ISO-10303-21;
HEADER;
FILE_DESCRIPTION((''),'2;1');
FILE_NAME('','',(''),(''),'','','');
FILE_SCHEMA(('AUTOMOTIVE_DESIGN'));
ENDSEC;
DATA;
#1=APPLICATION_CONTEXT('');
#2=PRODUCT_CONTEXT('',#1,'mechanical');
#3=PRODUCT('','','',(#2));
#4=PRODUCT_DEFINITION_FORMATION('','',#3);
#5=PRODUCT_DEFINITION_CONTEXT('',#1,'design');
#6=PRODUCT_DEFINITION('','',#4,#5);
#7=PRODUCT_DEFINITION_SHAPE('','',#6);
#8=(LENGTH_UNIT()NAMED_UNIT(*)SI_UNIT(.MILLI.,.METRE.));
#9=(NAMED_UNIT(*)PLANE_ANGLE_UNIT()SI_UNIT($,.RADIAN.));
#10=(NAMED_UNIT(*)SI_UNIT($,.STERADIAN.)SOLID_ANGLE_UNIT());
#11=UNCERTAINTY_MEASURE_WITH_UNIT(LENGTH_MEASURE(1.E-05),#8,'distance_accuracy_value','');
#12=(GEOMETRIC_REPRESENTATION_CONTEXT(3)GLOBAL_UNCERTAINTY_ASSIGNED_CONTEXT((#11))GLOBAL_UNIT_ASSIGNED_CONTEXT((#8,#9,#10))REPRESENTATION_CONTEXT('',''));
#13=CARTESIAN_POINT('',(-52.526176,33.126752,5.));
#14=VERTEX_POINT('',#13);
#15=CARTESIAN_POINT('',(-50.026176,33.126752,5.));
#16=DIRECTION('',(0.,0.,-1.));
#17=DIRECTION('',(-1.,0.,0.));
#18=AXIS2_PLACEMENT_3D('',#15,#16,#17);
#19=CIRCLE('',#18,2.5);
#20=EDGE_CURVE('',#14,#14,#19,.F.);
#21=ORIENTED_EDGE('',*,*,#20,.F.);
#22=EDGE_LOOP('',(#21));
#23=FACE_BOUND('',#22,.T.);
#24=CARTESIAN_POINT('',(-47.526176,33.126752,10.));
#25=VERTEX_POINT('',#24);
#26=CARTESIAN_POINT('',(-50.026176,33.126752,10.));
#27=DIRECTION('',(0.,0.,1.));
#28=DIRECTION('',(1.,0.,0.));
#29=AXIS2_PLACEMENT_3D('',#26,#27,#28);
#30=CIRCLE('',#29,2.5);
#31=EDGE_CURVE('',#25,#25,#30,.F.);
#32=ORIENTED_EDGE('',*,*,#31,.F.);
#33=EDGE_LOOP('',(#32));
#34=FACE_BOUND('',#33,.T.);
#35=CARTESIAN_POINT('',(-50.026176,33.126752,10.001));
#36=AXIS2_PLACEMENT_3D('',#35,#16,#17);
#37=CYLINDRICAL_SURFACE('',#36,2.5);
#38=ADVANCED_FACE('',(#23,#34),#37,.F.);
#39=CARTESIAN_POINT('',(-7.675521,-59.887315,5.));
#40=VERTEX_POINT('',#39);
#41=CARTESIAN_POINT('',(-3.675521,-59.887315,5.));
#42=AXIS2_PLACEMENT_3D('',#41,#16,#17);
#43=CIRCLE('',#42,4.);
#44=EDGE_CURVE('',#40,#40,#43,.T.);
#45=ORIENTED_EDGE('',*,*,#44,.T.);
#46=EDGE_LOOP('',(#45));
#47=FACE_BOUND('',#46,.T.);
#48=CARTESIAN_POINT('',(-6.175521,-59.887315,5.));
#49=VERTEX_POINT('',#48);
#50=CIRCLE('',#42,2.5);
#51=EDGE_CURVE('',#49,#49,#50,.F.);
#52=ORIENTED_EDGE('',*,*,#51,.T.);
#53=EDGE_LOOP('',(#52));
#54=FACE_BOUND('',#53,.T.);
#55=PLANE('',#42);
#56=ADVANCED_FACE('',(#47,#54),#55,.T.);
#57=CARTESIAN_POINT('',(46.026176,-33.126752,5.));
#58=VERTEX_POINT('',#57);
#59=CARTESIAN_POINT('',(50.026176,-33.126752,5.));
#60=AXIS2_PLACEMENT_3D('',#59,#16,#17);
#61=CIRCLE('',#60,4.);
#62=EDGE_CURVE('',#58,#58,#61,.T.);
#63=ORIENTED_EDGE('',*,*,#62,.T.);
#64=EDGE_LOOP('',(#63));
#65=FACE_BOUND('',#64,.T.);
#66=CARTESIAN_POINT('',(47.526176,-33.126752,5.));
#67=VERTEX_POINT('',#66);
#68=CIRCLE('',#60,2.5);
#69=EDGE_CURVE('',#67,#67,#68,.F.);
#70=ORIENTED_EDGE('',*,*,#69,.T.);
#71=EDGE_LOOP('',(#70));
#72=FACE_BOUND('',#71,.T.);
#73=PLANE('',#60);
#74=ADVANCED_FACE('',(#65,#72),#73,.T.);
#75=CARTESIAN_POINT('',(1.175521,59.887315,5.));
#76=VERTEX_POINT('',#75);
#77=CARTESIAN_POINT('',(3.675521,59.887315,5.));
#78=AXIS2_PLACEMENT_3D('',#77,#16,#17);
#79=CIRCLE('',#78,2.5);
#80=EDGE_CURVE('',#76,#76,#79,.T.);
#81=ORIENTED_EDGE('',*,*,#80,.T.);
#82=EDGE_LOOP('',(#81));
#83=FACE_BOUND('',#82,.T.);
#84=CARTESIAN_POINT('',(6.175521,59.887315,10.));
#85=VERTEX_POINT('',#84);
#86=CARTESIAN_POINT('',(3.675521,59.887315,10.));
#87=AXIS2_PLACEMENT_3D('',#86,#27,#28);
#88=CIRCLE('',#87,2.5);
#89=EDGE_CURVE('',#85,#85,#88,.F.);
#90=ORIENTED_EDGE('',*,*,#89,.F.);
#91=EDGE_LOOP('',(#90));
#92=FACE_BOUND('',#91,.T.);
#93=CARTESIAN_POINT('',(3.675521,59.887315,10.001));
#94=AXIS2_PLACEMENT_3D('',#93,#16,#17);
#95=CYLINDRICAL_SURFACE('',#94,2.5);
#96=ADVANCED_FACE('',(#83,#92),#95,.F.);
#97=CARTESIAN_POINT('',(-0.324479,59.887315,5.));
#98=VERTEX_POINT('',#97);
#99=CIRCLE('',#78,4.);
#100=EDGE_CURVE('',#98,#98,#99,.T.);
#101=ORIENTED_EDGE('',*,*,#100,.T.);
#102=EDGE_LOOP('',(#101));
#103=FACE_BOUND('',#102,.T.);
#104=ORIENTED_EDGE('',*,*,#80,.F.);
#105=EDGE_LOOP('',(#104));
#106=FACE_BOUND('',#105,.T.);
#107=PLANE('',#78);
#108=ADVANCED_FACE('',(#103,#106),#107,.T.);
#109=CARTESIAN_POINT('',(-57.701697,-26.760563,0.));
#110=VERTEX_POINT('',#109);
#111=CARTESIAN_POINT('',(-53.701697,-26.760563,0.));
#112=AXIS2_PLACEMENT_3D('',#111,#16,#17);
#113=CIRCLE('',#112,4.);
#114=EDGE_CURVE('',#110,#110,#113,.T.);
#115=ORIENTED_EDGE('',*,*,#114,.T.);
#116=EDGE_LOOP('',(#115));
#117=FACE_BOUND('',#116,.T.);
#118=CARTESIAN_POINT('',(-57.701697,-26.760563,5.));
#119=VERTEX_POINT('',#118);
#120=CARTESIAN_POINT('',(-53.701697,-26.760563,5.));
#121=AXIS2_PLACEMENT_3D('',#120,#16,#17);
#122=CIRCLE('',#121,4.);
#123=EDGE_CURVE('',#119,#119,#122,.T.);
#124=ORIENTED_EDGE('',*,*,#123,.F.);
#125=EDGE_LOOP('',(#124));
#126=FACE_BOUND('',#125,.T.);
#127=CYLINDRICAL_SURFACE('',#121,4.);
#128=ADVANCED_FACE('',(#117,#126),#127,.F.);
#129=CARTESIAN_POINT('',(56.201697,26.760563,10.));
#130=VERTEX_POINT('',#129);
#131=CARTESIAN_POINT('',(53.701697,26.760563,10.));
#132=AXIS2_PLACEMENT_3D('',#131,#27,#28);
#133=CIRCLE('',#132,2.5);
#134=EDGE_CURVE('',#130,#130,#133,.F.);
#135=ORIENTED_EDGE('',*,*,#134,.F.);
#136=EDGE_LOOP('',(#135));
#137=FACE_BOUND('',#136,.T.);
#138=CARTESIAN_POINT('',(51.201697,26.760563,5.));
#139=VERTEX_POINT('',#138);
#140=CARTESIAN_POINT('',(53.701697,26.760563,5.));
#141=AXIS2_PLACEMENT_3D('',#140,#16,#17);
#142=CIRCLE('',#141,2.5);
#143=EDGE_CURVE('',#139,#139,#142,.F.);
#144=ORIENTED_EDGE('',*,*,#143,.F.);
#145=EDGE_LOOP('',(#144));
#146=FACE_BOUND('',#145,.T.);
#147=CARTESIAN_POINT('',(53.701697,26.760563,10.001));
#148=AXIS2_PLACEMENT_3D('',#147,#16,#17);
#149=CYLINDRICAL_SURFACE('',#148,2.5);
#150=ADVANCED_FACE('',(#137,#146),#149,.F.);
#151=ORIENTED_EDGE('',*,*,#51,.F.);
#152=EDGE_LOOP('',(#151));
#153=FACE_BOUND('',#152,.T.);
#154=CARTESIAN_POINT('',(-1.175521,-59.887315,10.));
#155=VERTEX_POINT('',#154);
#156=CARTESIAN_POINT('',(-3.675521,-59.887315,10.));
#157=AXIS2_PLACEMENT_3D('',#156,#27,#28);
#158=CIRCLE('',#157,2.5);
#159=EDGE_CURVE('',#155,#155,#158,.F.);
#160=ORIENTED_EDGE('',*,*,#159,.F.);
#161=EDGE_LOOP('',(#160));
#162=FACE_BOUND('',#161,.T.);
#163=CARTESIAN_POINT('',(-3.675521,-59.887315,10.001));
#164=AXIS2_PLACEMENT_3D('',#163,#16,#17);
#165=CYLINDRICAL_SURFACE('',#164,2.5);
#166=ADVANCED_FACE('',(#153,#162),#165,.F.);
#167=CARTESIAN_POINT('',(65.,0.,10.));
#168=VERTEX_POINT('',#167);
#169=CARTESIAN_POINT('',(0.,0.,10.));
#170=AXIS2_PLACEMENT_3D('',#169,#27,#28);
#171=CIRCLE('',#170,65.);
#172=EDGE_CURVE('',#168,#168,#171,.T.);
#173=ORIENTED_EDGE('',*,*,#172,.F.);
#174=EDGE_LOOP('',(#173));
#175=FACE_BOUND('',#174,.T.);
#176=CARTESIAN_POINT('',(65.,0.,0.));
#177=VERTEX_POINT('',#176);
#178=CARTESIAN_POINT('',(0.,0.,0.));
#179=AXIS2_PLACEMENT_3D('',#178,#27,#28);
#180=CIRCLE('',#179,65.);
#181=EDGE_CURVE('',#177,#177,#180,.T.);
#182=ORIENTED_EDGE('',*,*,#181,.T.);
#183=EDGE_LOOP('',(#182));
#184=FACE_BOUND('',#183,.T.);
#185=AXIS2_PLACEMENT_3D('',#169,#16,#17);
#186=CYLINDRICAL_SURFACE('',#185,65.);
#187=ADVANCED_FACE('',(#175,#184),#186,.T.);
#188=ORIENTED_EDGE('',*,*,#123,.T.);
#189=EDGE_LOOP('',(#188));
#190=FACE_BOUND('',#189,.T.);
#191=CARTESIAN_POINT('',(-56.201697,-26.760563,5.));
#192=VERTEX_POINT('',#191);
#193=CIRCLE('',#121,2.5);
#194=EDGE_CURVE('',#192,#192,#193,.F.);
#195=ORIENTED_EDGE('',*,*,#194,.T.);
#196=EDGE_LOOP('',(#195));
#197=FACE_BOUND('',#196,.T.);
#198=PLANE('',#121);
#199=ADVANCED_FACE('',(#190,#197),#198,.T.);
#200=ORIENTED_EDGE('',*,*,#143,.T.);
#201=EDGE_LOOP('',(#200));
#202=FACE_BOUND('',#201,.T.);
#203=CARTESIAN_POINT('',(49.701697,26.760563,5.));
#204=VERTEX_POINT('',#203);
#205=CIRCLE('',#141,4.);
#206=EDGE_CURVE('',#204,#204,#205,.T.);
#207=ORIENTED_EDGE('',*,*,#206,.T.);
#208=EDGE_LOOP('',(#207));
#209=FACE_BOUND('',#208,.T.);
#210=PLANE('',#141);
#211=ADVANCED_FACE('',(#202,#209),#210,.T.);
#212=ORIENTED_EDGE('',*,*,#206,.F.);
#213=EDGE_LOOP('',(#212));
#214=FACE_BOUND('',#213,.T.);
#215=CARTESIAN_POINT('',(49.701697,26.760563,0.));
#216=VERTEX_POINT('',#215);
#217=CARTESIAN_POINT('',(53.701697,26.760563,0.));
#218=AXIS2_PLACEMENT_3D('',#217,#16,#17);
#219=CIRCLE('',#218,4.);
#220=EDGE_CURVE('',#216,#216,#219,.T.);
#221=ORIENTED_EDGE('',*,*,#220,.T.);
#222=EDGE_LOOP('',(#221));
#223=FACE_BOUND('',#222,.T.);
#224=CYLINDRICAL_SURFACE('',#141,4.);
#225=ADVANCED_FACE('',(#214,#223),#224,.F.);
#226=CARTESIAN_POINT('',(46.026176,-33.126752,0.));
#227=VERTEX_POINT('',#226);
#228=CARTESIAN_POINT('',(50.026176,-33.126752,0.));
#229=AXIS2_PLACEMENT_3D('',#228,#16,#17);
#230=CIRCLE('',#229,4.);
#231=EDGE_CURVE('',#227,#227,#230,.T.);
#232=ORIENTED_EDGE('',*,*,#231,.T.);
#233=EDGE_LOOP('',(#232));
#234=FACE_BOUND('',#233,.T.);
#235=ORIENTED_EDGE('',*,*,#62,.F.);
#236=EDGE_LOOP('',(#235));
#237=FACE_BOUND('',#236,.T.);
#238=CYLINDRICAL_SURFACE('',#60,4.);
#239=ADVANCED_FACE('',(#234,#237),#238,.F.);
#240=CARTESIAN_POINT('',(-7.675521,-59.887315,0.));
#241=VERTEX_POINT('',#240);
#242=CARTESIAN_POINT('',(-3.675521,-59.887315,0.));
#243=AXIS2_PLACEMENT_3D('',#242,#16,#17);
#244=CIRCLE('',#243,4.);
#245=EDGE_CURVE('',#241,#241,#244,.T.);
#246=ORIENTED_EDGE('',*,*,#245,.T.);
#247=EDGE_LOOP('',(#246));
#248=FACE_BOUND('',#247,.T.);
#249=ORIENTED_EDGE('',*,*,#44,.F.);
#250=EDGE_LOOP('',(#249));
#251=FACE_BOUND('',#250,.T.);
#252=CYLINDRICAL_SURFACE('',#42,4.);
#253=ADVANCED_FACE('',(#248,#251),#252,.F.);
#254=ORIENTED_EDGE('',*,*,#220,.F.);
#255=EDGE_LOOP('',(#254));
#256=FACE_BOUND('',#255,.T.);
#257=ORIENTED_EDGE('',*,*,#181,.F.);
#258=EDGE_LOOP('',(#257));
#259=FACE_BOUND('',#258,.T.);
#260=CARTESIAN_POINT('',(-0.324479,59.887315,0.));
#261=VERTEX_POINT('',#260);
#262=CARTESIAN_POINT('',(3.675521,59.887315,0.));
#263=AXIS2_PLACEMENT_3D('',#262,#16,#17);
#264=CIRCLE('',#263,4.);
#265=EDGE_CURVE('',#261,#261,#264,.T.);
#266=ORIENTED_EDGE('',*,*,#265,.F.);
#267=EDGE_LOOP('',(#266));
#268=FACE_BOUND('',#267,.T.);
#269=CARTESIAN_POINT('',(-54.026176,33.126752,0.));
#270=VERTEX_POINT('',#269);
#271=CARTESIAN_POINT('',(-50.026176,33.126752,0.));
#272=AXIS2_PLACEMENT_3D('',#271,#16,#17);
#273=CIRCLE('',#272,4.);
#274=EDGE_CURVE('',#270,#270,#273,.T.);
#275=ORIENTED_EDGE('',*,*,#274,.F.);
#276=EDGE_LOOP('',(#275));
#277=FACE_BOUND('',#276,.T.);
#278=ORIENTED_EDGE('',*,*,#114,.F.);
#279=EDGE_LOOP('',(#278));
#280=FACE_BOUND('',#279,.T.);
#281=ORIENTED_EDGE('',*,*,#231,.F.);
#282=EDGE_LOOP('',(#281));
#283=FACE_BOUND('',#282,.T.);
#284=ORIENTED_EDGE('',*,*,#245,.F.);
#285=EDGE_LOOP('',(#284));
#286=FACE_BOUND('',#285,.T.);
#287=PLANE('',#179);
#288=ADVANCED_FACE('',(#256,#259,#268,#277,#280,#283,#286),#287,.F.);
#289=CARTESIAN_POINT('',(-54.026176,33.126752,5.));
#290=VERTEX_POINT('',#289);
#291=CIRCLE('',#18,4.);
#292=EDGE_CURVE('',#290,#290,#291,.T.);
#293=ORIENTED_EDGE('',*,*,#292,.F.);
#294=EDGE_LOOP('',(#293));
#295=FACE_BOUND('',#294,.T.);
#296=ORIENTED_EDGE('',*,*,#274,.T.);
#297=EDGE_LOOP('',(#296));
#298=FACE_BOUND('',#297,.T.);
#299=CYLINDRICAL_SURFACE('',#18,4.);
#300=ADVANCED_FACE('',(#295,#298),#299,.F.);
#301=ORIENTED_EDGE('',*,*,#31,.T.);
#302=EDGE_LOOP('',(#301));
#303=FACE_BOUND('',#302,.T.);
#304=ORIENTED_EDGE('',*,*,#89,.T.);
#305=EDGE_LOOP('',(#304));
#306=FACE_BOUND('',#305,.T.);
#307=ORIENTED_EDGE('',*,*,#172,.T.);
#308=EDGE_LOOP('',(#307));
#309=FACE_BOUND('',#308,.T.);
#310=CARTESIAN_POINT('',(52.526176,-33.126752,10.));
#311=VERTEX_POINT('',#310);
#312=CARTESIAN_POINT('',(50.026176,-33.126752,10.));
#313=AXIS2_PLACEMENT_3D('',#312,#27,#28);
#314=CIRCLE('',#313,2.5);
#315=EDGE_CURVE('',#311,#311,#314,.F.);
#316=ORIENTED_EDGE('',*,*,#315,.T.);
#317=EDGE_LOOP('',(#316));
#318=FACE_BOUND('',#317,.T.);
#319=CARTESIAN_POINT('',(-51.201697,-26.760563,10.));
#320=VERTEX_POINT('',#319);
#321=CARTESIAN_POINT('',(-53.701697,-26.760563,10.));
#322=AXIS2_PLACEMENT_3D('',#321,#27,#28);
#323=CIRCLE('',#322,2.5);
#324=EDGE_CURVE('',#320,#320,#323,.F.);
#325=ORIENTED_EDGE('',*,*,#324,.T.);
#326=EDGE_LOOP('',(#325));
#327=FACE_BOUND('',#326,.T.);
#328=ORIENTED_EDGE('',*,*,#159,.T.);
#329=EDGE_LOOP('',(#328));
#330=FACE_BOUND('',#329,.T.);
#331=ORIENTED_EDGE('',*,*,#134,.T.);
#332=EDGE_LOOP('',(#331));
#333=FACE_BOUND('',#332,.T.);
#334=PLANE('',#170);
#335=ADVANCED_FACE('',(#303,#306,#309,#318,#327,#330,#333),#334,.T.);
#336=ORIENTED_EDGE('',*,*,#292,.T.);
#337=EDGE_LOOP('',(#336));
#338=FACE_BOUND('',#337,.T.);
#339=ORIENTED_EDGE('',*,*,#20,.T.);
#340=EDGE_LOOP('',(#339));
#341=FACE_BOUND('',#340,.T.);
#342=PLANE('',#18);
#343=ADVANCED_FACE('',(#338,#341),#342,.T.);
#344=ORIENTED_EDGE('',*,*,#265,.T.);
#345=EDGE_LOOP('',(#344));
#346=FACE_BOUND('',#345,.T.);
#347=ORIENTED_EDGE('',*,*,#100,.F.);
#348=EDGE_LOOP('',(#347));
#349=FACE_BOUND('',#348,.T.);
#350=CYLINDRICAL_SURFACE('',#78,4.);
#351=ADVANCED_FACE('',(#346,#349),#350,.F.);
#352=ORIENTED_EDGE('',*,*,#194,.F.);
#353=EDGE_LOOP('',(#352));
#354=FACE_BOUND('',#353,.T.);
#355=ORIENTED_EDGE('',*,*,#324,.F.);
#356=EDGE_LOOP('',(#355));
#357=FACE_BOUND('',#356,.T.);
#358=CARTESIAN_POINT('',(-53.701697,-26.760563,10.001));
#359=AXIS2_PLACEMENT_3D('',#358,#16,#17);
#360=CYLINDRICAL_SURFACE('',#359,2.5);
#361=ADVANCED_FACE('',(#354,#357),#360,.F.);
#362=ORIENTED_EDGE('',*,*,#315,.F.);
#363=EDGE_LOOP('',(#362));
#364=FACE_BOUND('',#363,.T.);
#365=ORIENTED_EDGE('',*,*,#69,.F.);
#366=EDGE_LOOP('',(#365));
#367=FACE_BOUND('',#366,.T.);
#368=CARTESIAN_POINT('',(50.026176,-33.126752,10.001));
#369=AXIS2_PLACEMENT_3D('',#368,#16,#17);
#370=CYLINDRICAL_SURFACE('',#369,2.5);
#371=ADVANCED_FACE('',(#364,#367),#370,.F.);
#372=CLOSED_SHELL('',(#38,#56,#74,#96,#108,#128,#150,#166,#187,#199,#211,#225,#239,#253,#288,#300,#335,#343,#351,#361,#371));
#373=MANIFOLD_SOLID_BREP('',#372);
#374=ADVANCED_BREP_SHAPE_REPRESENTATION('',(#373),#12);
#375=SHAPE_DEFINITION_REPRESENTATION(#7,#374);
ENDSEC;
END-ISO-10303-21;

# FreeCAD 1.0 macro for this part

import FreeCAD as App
import Part
import Sketcher
from FreeCAD import Vector
Q = App.Units.Quantity

doc = App.newDocument("Part")
body = doc.addObject("PartDesign::Body", "Body")

# Sketch on XY plane
sketch1 = body.newObject("Sketcher::SketchObject", "Sketch")
sketch1.AttachmentSupport = (doc.getObject("XY_Plane"), [""])
sketch1.MapMode = "FlatFace"
sketch1.addGeometry(Part.Circle(Vector(0, 0, 0), Vector(0, 0, 1), 65), False)
sketch1.addConstraint(Sketcher.Constraint("Coincident", 0, 3, -1, 1))
sketch1.addConstraint(Sketcher.Constraint("Diameter", 0, Q("130 mm")))
pad1 = body.newObject("PartDesign::Pad", "Pad")
pad1.Profile = sketch1
pad1.Length = 10

# Sketch on XY plane
sketch2 = body.newObject("Sketcher::SketchObject", "Sketch001")
sketch2.AttachmentSupport = (doc.getObject("XY_Plane"), [""])
sketch2.MapMode = "FlatFace"
sketch2.addGeometry(Part.Circle(Vector(3.7, 59.9, 0), Vector(0, 0, 1), 2.5), False)
sketch2.addConstraint(Sketcher.Constraint("Diameter", 0, Q("5 mm")))
sketch2.addConstraint(Sketcher.Constraint("DistanceX", -1, 1, 0, 3, Q("3.675521 mm")))
sketch2.addConstraint(Sketcher.Constraint("DistanceY", -1, 1, 0, 3, Q("59.887315 mm")))
pocket1 = body.newObject("PartDesign::Pocket", "Pocket")
pocket1.Profile = sketch2
pocket1.Type = "UpToFirst"
pocket1.Reversed = True

# Sketch on XY plane
sketch3 = body.newObject("Sketcher::SketchObject", "Sketch002")
sketch3.AttachmentSupport = (doc.getObject("XY_Plane"), [""])
sketch3.MapMode = "FlatFace"
sketch3.addGeometry(Part.Circle(Vector(-50, 33.1, 0), Vector(0, 0, 1), 2.5), False)
sketch3.addConstraint(Sketcher.Constraint("Diameter", 0, Q("5 mm")))
sketch3.addConstraint(Sketcher.Constraint("DistanceX", 0, 3, -1, 1, Q("50.026176 mm")))
sketch3.addConstraint(Sketcher.Constraint("DistanceY", -1, 1, 0, 3, Q("33.126752 mm")))
pocket2 = body.newObject("PartDesign::Pocket", "Pocket001")
pocket2.Profile = sketch3
pocket2.Type = "UpToFirst"
pocket2.Reversed = True

# Sketch on XY plane
sketch4 = body.newObject("Sketcher::SketchObject", "Sketch003")
sketch4.AttachmentSupport = (doc.getObject("XY_Plane"), [""])
sketch4.MapMode = "FlatFace"
sketch4.addGeometry(Part.Circle(Vector(-53.7, -26.8, 0), Vector(0, 0, 1), 2.5), False)
sketch4.addConstraint(Sketcher.Constraint("Diameter", 0, Q("5 mm")))
sketch4.addConstraint(Sketcher.Constraint("DistanceX", 0, 3, -1, 1, Q("53.701697 mm")))
sketch4.addConstraint(Sketcher.Constraint("DistanceY", 0, 3, -1, 1, Q("26.760563 mm")))
pocket3 = body.newObject("PartDesign::Pocket", "Pocket002")
pocket3.Profile = sketch4
pocket3.Type = "UpToFirst"
pocket3.Reversed = True

# Sketch on XY plane
sketch5 = body.newObject("Sketcher::SketchObject", "Sketch004")
sketch5.AttachmentSupport = (doc.getObject("XY_Plane"), [""])
sketch5.MapMode = "FlatFace"
sketch5.addGeometry(Part.Circle(Vector(-3.7, -59.9, 0), Vector(0, 0, 1), 2.5), False)
sketch5.addConstraint(Sketcher.Constraint("Diameter", 0, Q("5 mm")))
sketch5.addConstraint(Sketcher.Constraint("DistanceX", 0, 3, -1, 1, Q("3.675521 mm")))
sketch5.addConstraint(Sketcher.Constraint("DistanceY", 0, 3, -1, 1, Q("59.887315 mm")))
pocket4 = body.newObject("PartDesign::Pocket", "Pocket003")
pocket4.Profile = sketch5
pocket4.Type = "UpToFirst"
pocket4.Reversed = True

# Sketch on XY plane
sketch6 = body.newObject("Sketcher::SketchObject", "Sketch005")
sketch6.AttachmentSupport = (doc.getObject("XY_Plane"), [""])
sketch6.MapMode = "FlatFace"
sketch6.addGeometry(Part.Circle(Vector(50, -33.1, 0), Vector(0, 0, 1), 2.5), False)
sketch6.addConstraint(Sketcher.Constraint("Diameter", 0, Q("5 mm")))
sketch6.addConstraint(Sketcher.Constraint("DistanceX", -1, 1, 0, 3, Q("50.026176 mm")))
sketch6.addConstraint(Sketcher.Constraint("DistanceY", 0, 3, -1, 1, Q("33.126752 mm")))
pocket5 = body.newObject("PartDesign::Pocket", "Pocket004")
pocket5.Profile = sketch6
pocket5.Type = "UpToFirst"
pocket5.Reversed = True

# Sketch on XY plane
sketch7 = body.newObject("Sketcher::SketchObject", "Sketch006")
sketch7.AttachmentSupport = (doc.getObject("XY_Plane"), [""])
sketch7.MapMode = "FlatFace"
sketch7.addGeometry(Part.Circle(Vector(53.7, 26.8, 0), Vector(0, 0, 1), 2.5), False)
sketch7.addConstraint(Sketcher.Constraint("Diameter", 0, Q("5 mm")))
sketch7.addConstraint(Sketcher.Constraint("DistanceX", -1, 1, 0, 3, Q("53.701697 mm")))
sketch7.addConstraint(Sketcher.Constraint("DistanceY", -1, 1, 0, 3, Q("26.760563 mm")))
pocket6 = body.newObject("PartDesign::Pocket", "Pocket005")
pocket6.Profile = sketch7
pocket6.Type = "UpToFirst"
pocket6.Reversed = True

# Sketch on XY plane
sketch8 = body.newObject("Sketcher::SketchObject", "Sketch007")
sketch8.AttachmentSupport = (doc.getObject("XY_Plane"), [""])
sketch8.MapMode = "FlatFace"
sketch8.addGeometry(Part.Circle(Vector(3.7, 59.9, 0), Vector(0, 0, 1), 4), False)
sketch8.addGeometry(Part.Circle(Vector(3.7, 59.9, 0), Vector(0, 0, 1), 2.5), False)
sketch8.addGeometry(Part.Circle(Vector(-50, 33.1, 0), Vector(0, 0, 1), 4), False)
sketch8.addGeometry(Part.Circle(Vector(-53.7, -26.8, 0), Vector(0, 0, 1), 4), False)
sketch8.addGeometry(Part.Circle(Vector(-3.7, -59.9, 0), Vector(0, 0, 1), 4), False)
sketch8.addGeometry(Part.Circle(Vector(50, -33.1, 0), Vector(0, 0, 1), 4), False)
sketch8.addGeometry(Part.Circle(Vector(53.7, 26.8, 0), Vector(0, 0, 1), 4), False)
sketch8.addConstraint(Sketcher.Constraint("Coincident", 1, 3, 0, 3))
sketch8.addConstraint(Sketcher.Constraint("Equal", 0, 2))
sketch8.addConstraint(Sketcher.Constraint("Equal", 2, 3))
sketch8.addConstraint(Sketcher.Constraint("Equal", 3, 4))
sketch8.addConstraint(Sketcher.Constraint("Equal", 4, 5))
sketch8.addConstraint(Sketcher.Constraint("Equal", 5, 6))
sketch8.addConstraint(Sketcher.Constraint("Symmetric", 0, 3, 4, 3, -1, 1))
sketch8.addConstraint(Sketcher.Constraint("Symmetric", 2, 3, 5, 3, -1, 1))
sketch8.addConstraint(Sketcher.Constraint("Symmetric", 3, 3, 6, 3, -1, 1))
sketch8.addConstraint(Sketcher.Constraint("Diameter", 0, Q("8 mm")))
sketch8.addConstraint(Sketcher.Constraint("Diameter", 1, Q("5 mm")))
sketch8.addConstraint(Sketcher.Constraint("DistanceX", -1, 1, 0, 3, Q("3.675521 mm")))
sketch8.addConstraint(Sketcher.Constraint("DistanceX", 3, 3, 2, 3, Q("3.675521 mm")))
sketch8.addConstraint(Sketcher.Constraint("DistanceY", 3, 3, 0, 3, Q("86.647879 mm")))
sketch8.addConstraint(Sketcher.Constraint("DistanceY", 4, 3, 0, 3, Q("119.774631 mm")))
sketch8.addConstraint(Sketcher.Constraint("DistanceY", 5, 3, 3, 3, Q("6.366189 mm")))
sketch8.addConstraint(Sketcher.Constraint("DistanceX", 2, 3, -1, 1, Q("50.026176 mm")))
pocket7 = body.newObject("PartDesign::Pocket", "Pocket006")
pocket7.Profile = sketch8
pocket7.Length = 5
pocket7.Reversed = True

doc.recompute()
